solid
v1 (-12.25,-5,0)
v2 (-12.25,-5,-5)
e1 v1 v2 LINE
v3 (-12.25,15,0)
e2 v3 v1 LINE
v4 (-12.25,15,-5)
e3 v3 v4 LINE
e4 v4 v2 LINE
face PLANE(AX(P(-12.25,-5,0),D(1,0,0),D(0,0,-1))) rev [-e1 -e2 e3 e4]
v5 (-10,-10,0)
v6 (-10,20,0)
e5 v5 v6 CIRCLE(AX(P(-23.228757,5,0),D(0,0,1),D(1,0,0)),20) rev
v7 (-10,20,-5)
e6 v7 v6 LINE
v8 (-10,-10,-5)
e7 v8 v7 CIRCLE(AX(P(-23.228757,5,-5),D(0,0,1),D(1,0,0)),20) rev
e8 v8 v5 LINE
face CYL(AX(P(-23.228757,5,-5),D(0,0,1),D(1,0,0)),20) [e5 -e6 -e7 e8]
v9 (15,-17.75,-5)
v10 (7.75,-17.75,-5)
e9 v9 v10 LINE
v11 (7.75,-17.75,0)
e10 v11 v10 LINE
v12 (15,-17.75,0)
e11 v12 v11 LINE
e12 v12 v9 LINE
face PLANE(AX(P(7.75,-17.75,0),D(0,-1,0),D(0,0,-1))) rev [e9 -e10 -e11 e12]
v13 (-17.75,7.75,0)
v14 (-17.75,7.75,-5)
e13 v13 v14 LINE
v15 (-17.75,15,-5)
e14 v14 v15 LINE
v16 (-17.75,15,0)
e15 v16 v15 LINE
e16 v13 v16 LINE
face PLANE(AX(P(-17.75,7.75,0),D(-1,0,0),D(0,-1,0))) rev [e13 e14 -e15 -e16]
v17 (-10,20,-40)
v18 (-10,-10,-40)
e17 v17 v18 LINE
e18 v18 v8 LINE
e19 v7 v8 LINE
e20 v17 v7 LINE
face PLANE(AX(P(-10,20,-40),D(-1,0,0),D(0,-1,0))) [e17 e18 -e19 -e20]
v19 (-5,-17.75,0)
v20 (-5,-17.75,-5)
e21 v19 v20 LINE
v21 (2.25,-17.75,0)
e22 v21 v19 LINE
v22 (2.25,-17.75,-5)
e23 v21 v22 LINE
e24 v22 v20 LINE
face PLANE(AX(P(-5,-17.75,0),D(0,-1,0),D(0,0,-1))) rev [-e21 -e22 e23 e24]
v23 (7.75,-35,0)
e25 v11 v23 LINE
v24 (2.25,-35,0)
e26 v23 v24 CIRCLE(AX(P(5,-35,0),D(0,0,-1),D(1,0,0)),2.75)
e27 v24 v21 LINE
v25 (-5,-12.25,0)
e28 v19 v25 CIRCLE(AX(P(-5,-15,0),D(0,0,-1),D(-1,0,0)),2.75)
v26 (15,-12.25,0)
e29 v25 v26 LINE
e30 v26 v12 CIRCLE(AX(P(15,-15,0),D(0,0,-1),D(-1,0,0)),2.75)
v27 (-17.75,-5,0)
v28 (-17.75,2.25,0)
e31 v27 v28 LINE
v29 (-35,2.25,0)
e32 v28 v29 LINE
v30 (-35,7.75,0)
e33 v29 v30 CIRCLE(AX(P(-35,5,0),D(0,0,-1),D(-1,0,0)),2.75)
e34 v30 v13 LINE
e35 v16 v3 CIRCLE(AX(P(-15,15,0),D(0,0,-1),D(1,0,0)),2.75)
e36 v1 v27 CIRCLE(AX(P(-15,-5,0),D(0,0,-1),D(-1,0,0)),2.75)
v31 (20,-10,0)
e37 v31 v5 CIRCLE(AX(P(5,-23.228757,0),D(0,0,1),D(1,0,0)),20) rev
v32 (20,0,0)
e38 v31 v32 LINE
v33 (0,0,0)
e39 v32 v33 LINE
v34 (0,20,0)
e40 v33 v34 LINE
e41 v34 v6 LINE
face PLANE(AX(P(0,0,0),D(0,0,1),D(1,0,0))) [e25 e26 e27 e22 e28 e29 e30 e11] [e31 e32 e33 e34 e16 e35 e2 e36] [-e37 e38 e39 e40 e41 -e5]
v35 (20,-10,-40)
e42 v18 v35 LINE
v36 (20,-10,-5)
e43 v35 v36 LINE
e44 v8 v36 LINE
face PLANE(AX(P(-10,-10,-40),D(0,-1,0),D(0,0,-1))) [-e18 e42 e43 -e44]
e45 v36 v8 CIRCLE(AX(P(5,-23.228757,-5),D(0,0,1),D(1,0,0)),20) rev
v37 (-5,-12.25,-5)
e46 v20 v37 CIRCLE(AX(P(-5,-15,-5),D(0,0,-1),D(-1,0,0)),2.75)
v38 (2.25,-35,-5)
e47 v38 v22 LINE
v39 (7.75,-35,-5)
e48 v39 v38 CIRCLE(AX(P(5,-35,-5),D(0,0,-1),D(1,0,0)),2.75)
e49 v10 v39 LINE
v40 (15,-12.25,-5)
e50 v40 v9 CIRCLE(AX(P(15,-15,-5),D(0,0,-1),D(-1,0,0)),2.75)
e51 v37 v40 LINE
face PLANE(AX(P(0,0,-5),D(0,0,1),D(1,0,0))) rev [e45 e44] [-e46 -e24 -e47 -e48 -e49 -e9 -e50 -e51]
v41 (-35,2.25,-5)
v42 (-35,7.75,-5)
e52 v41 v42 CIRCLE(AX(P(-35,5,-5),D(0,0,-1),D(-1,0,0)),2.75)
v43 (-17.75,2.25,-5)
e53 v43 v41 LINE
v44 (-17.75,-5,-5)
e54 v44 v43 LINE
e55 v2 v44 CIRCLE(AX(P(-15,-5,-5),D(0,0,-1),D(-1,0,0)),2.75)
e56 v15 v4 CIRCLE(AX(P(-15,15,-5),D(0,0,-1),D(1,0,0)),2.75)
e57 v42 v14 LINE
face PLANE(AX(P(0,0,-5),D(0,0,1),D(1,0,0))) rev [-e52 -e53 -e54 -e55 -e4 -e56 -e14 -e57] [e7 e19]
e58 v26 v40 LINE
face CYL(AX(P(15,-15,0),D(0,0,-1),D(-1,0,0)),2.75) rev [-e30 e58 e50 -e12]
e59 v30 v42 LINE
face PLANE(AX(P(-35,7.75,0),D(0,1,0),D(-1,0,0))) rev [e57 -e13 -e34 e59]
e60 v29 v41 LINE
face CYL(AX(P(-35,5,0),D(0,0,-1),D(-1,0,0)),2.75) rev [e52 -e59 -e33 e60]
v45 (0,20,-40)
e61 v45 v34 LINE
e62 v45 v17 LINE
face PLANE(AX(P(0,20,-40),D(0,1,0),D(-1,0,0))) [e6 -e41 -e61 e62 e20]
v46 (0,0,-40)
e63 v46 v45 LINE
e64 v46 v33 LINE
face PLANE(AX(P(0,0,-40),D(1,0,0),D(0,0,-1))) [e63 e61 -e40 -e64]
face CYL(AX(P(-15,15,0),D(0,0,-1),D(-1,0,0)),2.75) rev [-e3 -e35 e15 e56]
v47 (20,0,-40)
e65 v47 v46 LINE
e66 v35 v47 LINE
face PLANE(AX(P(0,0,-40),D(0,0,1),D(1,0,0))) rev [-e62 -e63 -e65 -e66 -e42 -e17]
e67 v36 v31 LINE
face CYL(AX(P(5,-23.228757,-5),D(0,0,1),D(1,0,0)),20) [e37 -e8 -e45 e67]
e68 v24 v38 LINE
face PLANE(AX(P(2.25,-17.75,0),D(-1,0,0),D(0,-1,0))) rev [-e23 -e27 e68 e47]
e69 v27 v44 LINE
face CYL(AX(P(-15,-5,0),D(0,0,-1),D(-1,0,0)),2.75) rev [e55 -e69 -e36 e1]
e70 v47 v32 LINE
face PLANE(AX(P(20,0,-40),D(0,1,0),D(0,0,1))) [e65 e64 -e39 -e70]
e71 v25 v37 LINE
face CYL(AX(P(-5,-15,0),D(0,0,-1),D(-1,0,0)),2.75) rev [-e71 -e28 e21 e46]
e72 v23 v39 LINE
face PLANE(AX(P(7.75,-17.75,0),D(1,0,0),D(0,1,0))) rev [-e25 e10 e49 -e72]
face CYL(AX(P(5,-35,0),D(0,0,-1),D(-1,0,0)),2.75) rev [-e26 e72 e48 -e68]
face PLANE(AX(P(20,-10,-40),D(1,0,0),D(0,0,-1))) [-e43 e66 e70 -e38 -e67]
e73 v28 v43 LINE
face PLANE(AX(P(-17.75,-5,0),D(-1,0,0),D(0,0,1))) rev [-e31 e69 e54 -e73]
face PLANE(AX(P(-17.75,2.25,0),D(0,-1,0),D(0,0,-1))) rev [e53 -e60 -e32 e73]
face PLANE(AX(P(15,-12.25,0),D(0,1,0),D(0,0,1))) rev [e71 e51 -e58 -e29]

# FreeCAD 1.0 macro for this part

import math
import FreeCAD as App
import Part
import Sketcher
from FreeCAD import Vector


def add_polygon(sketch, points):
    """Adds a closed chain of lines whose ends are joined by coincident constraints."""
    first, n = sketch.GeometryCount, len(points)
    for a, b in zip(points, points[1:] + points[:1]):
        sketch.addGeometry(Part.LineSegment(App.Vector(*a, 0), App.Vector(*b, 0)), False)
    for i in range(n):
        sketch.addConstraint(Sketcher.Constraint("Coincident", first + i, 2, first + (i + 1) % n, 1))

doc = App.newDocument("Part")
body = doc.addObject("PartDesign::Body", "Body")

# Sketch on XY plane
sketch1 = body.newObject("Sketcher::SketchObject", "Sketch")
sketch1.AttachmentSupport = (doc.getObject("XY_Plane"), [""])
sketch1.MapMode = "FlatFace"
add_polygon(sketch1, [(0, 20), (-10, 20), (-10, -10), (20, -10), (20, 0), (0, 0)])  # lines 0-5
sketch1.addConstraint([
    Sketcher.Constraint("Horizontal", 0),
    Sketcher.Constraint("Vertical", 1),
    Sketcher.Constraint("Horizontal", 2),
    Sketcher.Constraint("Vertical", 3),
    Sketcher.Constraint("Horizontal", 4),
    Sketcher.Constraint("Vertical", 5),
    Sketcher.Constraint("Coincident", 4, 2, -1, 1),
    Sketcher.Constraint("Equal", 2, 1),
    Sketcher.Constraint("Equal", 0, 3),
    Sketcher.Constraint("DistanceX", 0, 2, 0, 1, 10.0),
    Sketcher.Constraint("DistanceX", 2, 1, 2, 2, 30.0),
])
pad1 = body.newObject("PartDesign::Pad", "Pad")
pad1.Profile = sketch1
pad1.Length = 40
pad1.Reversed = True

# Sketch on XY plane
sketch2 = body.newObject("Sketcher::SketchObject", "Sketch001")
sketch2.AttachmentSupport = (doc.getObject("XY_Plane"), [""])
sketch2.MapMode = "FlatFace"
sketch2.addGeometry([
    Part.LineSegment(Vector(20, -10, 0), Vector(-10, -10, 0)),
    Part.ArcOfCircle(Part.Circle(Vector(5, -23, 0), Vector(0, 0, 1), 20), math.radians(139), math.radians(401)),
    Part.LineSegment(Vector(-10, -10, 0), Vector(-10, 20, 0)),
    Part.ArcOfCircle(Part.Circle(Vector(-23, 5, 0), Vector(0, 0, 1), 20), math.radians(49), math.radians(311)),
], False)
sketch2.addConstraint([
    Sketcher.Constraint("Coincident", 0, 1, 1, 2),
    Sketcher.Constraint("Coincident", 1, 1, 0, 2),
    Sketcher.Constraint("Coincident", 2, 1, 3, 2),
    Sketcher.Constraint("Coincident", 3, 1, 2, 2),
    Sketcher.Constraint("Horizontal", 0),
    Sketcher.Constraint("Vertical", 2),
    Sketcher.Constraint("Coincident", 2, 1, 1, 1),
    Sketcher.Constraint("Equal", 1, 3),
    Sketcher.Constraint("Equal", 0, 2),
    Sketcher.Constraint("Radius", 1, 20.0),
    Sketcher.Constraint("DistanceX", 0, 2, 0, 1, 30.0),
    Sketcher.Constraint("DistanceX", -1, 1, 1, 3, 5.0),
    Sketcher.Constraint("DistanceY", -1, 1, 3, 3, 5.0),
])
pad2 = body.newObject("PartDesign::Pad", "Pad001")
pad2.Profile = sketch2
pad2.Length = 5
pad2.Reversed = True

# Sketch on XY plane
sketch3 = body.newObject("Sketcher::SketchObject", "Sketch002")
sketch3.AttachmentSupport = (doc.getObject("XY_Plane"), [""])
sketch3.MapMode = "FlatFace"
sketch3.AttachmentOffset = App.Placement(Vector(0, 0, -5), App.Rotation())
sketch3.addGeometry([
    Part.LineSegment(Vector(-12.2, 15, 0), Vector(-12.2, -5, 0)),  # 0
    Part.ArcOfCircle(Part.Circle(Vector(-15, -5, 0), Vector(0, 0, 1), 2.8), math.radians(180), math.radians(360)),  # 1
    Part.LineSegment(Vector(-17.8, -5, 0), Vector(-17.8, 2.2, 0)),  # 2
    Part.LineSegment(Vector(-17.8, 2.2, 0), Vector(-35, 2.2, 0)),  # 3
    Part.ArcOfCircle(Part.Circle(Vector(-35, 5, 0), Vector(0, 0, 1), 2.8), math.radians(90), math.radians(270)),  # 4
    Part.LineSegment(Vector(-35, 7.8, 0), Vector(-17.8, 7.8, 0)),  # 5
    Part.LineSegment(Vector(-17.8, 7.8, 0), Vector(-17.8, 15, 0)),  # 6
    Part.ArcOfCircle(Part.Circle(Vector(-15, 15, 0), Vector(0, 0, 1), 2.8), math.radians(0), math.radians(180)),  # 7
    Part.LineSegment(Vector(2.2, -17.8, 0), Vector(-5, -17.8, 0)),  # 8
    Part.ArcOfCircle(Part.Circle(Vector(-5, -15, 0), Vector(0, 0, 1), 2.8), math.radians(90), math.radians(270)),  # 9
    Part.LineSegment(Vector(-5, -12.2, 0), Vector(15, -12.2, 0)),  # 10
    Part.ArcOfCircle(Part.Circle(Vector(15, -15, 0), Vector(0, 0, 1), 2.8), math.radians(-90), math.radians(90)),  # 11
    Part.LineSegment(Vector(15, -17.8, 0), Vector(7.8, -17.8, 0)),  # 12
    Part.LineSegment(Vector(7.8, -17.8, 0), Vector(7.8, -35, 0)),  # 13
    Part.ArcOfCircle(Part.Circle(Vector(5, -35, 0), Vector(0, 0, 1), 2.8), math.radians(180), math.radians(360)),  # 14
    Part.LineSegment(Vector(2.2, -35, 0), Vector(2.2, -17.8, 0)),  # 15
], False)
sketch3.addConstraint([
    Sketcher.Constraint("Tangent", 0, 2, 1, 2),
    Sketcher.Constraint("Tangent", 1, 1, 2, 1),
    Sketcher.Constraint("Coincident", 2, 2, 3, 1),
    Sketcher.Constraint("Tangent", 3, 2, 4, 2),
    Sketcher.Constraint("Tangent", 4, 1, 5, 1),
    Sketcher.Constraint("Coincident", 5, 2, 6, 1),
    Sketcher.Constraint("Tangent", 6, 2, 7, 2),
    Sketcher.Constraint("Tangent", 7, 1, 0, 1),
    Sketcher.Constraint("Tangent", 8, 2, 9, 2),
    Sketcher.Constraint("Tangent", 9, 1, 10, 1),
    Sketcher.Constraint("Tangent", 10, 2, 11, 2),
    Sketcher.Constraint("Tangent", 11, 1, 12, 1),
    Sketcher.Constraint("Coincident", 12, 2, 13, 1),
    Sketcher.Constraint("Tangent", 13, 2, 14, 2),
    Sketcher.Constraint("Tangent", 14, 1, 15, 1),
    Sketcher.Constraint("Coincident", 15, 2, 8, 1),
    Sketcher.Constraint("Vertical", 0),
    Sketcher.Constraint("Vertical", 2),
    Sketcher.Constraint("Horizontal", 3),
    Sketcher.Constraint("Horizontal", 5),
    Sketcher.Constraint("Vertical", 6),
    Sketcher.Constraint("Horizontal", 8),
    Sketcher.Constraint("Horizontal", 10),
    Sketcher.Constraint("Horizontal", 12),
    Sketcher.Constraint("Vertical", 13),
    Sketcher.Constraint("Vertical", 15),
    Sketcher.Constraint("Equal", 1, 4),
    Sketcher.Constraint("Equal", 4, 7),
    Sketcher.Constraint("Equal", 7, 9),
    Sketcher.Constraint("Equal", 9, 11),
    Sketcher.Constraint("Equal", 11, 14),
    Sketcher.Constraint("Symmetric", 7, 3, 11, 3, -1, 1),
    Sketcher.Constraint("Equal", 8, 12),
    Sketcher.Constraint("Equal", 10, 0),
    Sketcher.Constraint("Equal", 12, 2),
    Sketcher.Constraint("Equal", 5, 13),
    Sketcher.Constraint("DistanceX", 10, 1, 10, 2, 20.0),
    Sketcher.Constraint("Radius", 1, 2.75),
    Sketcher.Constraint("DistanceX", 1, 3, -1, 1, 15.0),
    Sketcher.Constraint("DistanceY", 1, 3, -1, 1, 5.0),
    Sketcher.Constraint("DistanceX", 4, 3, -1, 1, 35.0),
])
pocket1 = body.newObject("PartDesign::Pocket", "Pocket")
pocket1.Profile = sketch3
pocket1.Type = "ThroughAll"
pocket1.Reversed = True

doc.recompute()
